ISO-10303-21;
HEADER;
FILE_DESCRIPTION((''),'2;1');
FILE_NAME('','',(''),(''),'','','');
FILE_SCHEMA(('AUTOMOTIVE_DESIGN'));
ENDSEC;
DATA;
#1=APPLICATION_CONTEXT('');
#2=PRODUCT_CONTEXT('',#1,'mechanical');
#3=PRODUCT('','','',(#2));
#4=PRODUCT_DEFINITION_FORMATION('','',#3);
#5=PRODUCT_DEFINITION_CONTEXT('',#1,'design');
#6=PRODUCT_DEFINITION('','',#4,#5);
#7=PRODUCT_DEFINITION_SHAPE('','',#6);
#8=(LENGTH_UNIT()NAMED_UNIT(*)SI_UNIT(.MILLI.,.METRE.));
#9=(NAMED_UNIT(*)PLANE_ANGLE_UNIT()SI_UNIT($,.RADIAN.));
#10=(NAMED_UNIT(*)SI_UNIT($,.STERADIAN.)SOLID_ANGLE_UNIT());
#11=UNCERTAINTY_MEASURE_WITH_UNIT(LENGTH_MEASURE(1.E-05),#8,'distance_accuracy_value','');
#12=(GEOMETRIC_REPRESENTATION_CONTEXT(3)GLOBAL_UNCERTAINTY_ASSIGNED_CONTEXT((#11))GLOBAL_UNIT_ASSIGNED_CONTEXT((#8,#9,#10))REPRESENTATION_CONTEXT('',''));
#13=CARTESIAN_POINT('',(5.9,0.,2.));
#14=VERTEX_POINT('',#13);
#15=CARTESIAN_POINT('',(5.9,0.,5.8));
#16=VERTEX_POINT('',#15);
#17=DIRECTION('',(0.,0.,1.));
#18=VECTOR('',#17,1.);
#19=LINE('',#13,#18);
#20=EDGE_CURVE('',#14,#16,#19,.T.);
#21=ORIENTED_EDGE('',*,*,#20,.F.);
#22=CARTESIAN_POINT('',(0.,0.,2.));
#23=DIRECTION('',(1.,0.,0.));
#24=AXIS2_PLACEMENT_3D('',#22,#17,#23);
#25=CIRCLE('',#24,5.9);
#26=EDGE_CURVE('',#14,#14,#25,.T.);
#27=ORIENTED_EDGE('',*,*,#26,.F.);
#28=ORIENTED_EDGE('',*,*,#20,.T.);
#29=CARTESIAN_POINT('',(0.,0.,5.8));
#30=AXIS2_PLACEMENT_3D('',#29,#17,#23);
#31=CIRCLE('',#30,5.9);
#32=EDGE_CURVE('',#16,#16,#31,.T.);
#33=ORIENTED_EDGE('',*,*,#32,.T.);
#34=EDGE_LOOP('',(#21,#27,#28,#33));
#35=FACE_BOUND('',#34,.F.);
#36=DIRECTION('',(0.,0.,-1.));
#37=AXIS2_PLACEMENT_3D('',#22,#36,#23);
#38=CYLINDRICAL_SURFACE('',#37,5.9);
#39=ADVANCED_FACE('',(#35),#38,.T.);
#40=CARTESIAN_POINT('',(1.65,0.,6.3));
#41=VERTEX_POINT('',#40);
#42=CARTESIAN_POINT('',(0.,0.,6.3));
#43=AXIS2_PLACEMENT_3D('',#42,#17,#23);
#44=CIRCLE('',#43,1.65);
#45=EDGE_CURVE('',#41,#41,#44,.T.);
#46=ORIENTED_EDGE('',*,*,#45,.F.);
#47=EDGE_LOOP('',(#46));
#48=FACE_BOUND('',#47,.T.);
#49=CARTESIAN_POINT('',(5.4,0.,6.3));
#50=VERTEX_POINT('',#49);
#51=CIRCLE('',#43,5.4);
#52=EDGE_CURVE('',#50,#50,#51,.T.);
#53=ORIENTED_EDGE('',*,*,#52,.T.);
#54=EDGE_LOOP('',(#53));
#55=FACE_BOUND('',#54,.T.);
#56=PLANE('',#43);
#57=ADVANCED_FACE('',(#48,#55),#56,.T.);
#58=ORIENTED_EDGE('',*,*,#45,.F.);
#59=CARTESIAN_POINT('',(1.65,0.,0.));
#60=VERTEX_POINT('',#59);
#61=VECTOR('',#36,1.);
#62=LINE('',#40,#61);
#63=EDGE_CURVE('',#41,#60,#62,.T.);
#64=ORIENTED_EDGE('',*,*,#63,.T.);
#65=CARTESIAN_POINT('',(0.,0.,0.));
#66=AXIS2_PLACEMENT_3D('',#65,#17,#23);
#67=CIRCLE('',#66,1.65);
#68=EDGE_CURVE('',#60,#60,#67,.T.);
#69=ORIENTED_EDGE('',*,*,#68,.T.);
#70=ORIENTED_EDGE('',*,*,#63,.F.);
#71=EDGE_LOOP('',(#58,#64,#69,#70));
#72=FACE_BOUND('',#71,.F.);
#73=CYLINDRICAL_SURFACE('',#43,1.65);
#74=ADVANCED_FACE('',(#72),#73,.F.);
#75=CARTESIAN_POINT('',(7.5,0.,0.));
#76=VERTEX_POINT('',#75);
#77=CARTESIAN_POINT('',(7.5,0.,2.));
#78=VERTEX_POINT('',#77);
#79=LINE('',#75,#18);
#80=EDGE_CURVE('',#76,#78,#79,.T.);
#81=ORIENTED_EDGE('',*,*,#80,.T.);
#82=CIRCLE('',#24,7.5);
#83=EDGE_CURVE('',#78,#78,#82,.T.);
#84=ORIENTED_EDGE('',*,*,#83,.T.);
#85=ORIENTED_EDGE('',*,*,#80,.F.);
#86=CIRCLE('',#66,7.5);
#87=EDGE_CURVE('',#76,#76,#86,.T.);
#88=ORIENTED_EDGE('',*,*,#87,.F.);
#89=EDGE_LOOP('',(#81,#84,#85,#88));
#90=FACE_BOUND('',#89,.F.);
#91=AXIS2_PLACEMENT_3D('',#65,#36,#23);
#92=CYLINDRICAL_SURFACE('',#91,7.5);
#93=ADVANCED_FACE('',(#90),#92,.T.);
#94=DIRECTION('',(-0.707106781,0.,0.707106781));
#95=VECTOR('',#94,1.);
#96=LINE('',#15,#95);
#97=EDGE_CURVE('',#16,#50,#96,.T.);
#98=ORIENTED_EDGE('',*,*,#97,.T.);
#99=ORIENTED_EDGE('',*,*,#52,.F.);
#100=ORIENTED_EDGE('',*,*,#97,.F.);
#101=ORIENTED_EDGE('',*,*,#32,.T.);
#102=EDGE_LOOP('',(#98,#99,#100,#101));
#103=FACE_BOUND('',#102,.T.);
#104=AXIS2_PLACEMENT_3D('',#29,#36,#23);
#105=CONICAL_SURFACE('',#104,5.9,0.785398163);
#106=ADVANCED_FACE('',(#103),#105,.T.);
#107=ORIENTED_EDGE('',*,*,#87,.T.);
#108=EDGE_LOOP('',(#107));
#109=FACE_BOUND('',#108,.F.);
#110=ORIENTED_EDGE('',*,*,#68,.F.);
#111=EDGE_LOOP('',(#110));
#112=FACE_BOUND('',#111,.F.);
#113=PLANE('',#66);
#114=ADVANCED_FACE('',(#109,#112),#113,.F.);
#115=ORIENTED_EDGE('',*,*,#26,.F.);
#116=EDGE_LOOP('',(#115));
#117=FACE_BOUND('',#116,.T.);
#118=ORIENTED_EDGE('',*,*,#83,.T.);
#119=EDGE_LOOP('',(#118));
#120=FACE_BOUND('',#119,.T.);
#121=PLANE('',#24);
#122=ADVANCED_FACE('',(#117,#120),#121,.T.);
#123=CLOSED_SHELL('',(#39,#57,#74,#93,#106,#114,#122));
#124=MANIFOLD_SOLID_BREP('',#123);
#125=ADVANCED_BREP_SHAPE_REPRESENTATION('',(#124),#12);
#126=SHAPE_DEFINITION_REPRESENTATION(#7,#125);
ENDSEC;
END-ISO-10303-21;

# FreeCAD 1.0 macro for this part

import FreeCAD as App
import Part
import Sketcher
from FreeCAD import Vector


def edges_at(feature, points):
    """Names of the edges that pass closest to the given points."""
    edges = feature.Shape.Edges
    near = lambda p: min(range(len(edges)), key=lambda i: edges[i].distToShape(Part.Vertex(*p))[0])
    return sorted({f"Edge{near(p) + 1}" for p in points})

doc = App.newDocument("Part")
params = doc.addObject("Spreadsheet::Sheet", "Params")
for row, (alias, value) in enumerate([
    ("sketch1_diameter", "15 mm"),
    ("pad1_length", "2 mm"),
    ("sketch2_diameter", "11.8 mm"),
    ("pad2_length", "4.3 mm"),
    ("sketch3_diameter", "3.3 mm"),
    ("chamfer_size", "0.5 mm"),
], start=1):
    params.set(f"A{row}", alias)
    params.set(f"B{row}", "=" + value)
    params.setAlias(f"B{row}", alias)

body = doc.addObject("PartDesign::Body", "Body")

# Sketch on XY plane
sketch1 = body.newObject("Sketcher::SketchObject", "Sketch")
sketch1.AttachmentSupport = (doc.getObject("XY_Plane"), [""])
sketch1.MapMode = "FlatFace"
sketch1.addGeometry(Part.Circle(Vector(0, 0, 0), Vector(0, 0, 1), 7.5), False)
sketch1.addConstraint(Sketcher.Constraint("Coincident", 0, 3, -1, 1))
sketch1.addConstraint(Sketcher.Constraint("Diameter", 0, 15.0))
sketch1.setExpression("Constraints[1]", "Params.sketch1_diameter")
pad1 = body.newObject("PartDesign::Pad", "Pad")
pad1.Profile = sketch1
pad1.setExpression("Length", "Params.pad1_length")

# Sketch on XY plane
sketch2 = body.newObject("Sketcher::SketchObject", "Sketch001")
sketch2.AttachmentSupport = (doc.getObject("XY_Plane"), [""])
sketch2.MapMode = "FlatFace"
sketch2.AttachmentOffset = App.Placement(Vector(0, 0, 2), App.Rotation())
sketch2.addGeometry(Part.Circle(Vector(0, 0, 0), Vector(0, 0, 1), 5.9), False)
sketch2.addConstraint(Sketcher.Constraint("Coincident", 0, 3, -1, 1))
sketch2.addConstraint(Sketcher.Constraint("Diameter", 0, 11.8))
sketch2.setExpression("Constraints[1]", "Params.sketch2_diameter")
pad2 = body.newObject("PartDesign::Pad", "Pad001")
pad2.Profile = sketch2
pad2.setExpression("Length", "Params.pad2_length")

# Sketch on XY plane
sketch3 = body.newObject("Sketcher::SketchObject", "Sketch002")
sketch3.AttachmentSupport = (doc.getObject("XY_Plane"), [""])
sketch3.MapMode = "FlatFace"
sketch3.AttachmentOffset = App.Placement(Vector(0, 0, 6.3), App.Rotation())
sketch3.addGeometry(Part.Circle(Vector(0, 0, 0), Vector(0, 0, 1), 1.65), False)
sketch3.addConstraint(Sketcher.Constraint("Coincident", 0, 3, -1, 1))
sketch3.addConstraint(Sketcher.Constraint("Diameter", 0, 3.3))
sketch3.setExpression("Constraints[1]", "Params.sketch3_diameter")
pocket1 = body.newObject("PartDesign::Pocket", "Pocket")
pocket1.Profile = sketch3
pocket1.Type = "ThroughAll"
doc.recompute()

chamfer = body.newObject("PartDesign::Chamfer", "Chamfer")
chamfer.Base = (pocket1, edges_at(pocket1, [(-5.9, 0, 6.3)]))
chamfer.setExpression("Size", "Params.chamfer_size")

doc.recompute()
